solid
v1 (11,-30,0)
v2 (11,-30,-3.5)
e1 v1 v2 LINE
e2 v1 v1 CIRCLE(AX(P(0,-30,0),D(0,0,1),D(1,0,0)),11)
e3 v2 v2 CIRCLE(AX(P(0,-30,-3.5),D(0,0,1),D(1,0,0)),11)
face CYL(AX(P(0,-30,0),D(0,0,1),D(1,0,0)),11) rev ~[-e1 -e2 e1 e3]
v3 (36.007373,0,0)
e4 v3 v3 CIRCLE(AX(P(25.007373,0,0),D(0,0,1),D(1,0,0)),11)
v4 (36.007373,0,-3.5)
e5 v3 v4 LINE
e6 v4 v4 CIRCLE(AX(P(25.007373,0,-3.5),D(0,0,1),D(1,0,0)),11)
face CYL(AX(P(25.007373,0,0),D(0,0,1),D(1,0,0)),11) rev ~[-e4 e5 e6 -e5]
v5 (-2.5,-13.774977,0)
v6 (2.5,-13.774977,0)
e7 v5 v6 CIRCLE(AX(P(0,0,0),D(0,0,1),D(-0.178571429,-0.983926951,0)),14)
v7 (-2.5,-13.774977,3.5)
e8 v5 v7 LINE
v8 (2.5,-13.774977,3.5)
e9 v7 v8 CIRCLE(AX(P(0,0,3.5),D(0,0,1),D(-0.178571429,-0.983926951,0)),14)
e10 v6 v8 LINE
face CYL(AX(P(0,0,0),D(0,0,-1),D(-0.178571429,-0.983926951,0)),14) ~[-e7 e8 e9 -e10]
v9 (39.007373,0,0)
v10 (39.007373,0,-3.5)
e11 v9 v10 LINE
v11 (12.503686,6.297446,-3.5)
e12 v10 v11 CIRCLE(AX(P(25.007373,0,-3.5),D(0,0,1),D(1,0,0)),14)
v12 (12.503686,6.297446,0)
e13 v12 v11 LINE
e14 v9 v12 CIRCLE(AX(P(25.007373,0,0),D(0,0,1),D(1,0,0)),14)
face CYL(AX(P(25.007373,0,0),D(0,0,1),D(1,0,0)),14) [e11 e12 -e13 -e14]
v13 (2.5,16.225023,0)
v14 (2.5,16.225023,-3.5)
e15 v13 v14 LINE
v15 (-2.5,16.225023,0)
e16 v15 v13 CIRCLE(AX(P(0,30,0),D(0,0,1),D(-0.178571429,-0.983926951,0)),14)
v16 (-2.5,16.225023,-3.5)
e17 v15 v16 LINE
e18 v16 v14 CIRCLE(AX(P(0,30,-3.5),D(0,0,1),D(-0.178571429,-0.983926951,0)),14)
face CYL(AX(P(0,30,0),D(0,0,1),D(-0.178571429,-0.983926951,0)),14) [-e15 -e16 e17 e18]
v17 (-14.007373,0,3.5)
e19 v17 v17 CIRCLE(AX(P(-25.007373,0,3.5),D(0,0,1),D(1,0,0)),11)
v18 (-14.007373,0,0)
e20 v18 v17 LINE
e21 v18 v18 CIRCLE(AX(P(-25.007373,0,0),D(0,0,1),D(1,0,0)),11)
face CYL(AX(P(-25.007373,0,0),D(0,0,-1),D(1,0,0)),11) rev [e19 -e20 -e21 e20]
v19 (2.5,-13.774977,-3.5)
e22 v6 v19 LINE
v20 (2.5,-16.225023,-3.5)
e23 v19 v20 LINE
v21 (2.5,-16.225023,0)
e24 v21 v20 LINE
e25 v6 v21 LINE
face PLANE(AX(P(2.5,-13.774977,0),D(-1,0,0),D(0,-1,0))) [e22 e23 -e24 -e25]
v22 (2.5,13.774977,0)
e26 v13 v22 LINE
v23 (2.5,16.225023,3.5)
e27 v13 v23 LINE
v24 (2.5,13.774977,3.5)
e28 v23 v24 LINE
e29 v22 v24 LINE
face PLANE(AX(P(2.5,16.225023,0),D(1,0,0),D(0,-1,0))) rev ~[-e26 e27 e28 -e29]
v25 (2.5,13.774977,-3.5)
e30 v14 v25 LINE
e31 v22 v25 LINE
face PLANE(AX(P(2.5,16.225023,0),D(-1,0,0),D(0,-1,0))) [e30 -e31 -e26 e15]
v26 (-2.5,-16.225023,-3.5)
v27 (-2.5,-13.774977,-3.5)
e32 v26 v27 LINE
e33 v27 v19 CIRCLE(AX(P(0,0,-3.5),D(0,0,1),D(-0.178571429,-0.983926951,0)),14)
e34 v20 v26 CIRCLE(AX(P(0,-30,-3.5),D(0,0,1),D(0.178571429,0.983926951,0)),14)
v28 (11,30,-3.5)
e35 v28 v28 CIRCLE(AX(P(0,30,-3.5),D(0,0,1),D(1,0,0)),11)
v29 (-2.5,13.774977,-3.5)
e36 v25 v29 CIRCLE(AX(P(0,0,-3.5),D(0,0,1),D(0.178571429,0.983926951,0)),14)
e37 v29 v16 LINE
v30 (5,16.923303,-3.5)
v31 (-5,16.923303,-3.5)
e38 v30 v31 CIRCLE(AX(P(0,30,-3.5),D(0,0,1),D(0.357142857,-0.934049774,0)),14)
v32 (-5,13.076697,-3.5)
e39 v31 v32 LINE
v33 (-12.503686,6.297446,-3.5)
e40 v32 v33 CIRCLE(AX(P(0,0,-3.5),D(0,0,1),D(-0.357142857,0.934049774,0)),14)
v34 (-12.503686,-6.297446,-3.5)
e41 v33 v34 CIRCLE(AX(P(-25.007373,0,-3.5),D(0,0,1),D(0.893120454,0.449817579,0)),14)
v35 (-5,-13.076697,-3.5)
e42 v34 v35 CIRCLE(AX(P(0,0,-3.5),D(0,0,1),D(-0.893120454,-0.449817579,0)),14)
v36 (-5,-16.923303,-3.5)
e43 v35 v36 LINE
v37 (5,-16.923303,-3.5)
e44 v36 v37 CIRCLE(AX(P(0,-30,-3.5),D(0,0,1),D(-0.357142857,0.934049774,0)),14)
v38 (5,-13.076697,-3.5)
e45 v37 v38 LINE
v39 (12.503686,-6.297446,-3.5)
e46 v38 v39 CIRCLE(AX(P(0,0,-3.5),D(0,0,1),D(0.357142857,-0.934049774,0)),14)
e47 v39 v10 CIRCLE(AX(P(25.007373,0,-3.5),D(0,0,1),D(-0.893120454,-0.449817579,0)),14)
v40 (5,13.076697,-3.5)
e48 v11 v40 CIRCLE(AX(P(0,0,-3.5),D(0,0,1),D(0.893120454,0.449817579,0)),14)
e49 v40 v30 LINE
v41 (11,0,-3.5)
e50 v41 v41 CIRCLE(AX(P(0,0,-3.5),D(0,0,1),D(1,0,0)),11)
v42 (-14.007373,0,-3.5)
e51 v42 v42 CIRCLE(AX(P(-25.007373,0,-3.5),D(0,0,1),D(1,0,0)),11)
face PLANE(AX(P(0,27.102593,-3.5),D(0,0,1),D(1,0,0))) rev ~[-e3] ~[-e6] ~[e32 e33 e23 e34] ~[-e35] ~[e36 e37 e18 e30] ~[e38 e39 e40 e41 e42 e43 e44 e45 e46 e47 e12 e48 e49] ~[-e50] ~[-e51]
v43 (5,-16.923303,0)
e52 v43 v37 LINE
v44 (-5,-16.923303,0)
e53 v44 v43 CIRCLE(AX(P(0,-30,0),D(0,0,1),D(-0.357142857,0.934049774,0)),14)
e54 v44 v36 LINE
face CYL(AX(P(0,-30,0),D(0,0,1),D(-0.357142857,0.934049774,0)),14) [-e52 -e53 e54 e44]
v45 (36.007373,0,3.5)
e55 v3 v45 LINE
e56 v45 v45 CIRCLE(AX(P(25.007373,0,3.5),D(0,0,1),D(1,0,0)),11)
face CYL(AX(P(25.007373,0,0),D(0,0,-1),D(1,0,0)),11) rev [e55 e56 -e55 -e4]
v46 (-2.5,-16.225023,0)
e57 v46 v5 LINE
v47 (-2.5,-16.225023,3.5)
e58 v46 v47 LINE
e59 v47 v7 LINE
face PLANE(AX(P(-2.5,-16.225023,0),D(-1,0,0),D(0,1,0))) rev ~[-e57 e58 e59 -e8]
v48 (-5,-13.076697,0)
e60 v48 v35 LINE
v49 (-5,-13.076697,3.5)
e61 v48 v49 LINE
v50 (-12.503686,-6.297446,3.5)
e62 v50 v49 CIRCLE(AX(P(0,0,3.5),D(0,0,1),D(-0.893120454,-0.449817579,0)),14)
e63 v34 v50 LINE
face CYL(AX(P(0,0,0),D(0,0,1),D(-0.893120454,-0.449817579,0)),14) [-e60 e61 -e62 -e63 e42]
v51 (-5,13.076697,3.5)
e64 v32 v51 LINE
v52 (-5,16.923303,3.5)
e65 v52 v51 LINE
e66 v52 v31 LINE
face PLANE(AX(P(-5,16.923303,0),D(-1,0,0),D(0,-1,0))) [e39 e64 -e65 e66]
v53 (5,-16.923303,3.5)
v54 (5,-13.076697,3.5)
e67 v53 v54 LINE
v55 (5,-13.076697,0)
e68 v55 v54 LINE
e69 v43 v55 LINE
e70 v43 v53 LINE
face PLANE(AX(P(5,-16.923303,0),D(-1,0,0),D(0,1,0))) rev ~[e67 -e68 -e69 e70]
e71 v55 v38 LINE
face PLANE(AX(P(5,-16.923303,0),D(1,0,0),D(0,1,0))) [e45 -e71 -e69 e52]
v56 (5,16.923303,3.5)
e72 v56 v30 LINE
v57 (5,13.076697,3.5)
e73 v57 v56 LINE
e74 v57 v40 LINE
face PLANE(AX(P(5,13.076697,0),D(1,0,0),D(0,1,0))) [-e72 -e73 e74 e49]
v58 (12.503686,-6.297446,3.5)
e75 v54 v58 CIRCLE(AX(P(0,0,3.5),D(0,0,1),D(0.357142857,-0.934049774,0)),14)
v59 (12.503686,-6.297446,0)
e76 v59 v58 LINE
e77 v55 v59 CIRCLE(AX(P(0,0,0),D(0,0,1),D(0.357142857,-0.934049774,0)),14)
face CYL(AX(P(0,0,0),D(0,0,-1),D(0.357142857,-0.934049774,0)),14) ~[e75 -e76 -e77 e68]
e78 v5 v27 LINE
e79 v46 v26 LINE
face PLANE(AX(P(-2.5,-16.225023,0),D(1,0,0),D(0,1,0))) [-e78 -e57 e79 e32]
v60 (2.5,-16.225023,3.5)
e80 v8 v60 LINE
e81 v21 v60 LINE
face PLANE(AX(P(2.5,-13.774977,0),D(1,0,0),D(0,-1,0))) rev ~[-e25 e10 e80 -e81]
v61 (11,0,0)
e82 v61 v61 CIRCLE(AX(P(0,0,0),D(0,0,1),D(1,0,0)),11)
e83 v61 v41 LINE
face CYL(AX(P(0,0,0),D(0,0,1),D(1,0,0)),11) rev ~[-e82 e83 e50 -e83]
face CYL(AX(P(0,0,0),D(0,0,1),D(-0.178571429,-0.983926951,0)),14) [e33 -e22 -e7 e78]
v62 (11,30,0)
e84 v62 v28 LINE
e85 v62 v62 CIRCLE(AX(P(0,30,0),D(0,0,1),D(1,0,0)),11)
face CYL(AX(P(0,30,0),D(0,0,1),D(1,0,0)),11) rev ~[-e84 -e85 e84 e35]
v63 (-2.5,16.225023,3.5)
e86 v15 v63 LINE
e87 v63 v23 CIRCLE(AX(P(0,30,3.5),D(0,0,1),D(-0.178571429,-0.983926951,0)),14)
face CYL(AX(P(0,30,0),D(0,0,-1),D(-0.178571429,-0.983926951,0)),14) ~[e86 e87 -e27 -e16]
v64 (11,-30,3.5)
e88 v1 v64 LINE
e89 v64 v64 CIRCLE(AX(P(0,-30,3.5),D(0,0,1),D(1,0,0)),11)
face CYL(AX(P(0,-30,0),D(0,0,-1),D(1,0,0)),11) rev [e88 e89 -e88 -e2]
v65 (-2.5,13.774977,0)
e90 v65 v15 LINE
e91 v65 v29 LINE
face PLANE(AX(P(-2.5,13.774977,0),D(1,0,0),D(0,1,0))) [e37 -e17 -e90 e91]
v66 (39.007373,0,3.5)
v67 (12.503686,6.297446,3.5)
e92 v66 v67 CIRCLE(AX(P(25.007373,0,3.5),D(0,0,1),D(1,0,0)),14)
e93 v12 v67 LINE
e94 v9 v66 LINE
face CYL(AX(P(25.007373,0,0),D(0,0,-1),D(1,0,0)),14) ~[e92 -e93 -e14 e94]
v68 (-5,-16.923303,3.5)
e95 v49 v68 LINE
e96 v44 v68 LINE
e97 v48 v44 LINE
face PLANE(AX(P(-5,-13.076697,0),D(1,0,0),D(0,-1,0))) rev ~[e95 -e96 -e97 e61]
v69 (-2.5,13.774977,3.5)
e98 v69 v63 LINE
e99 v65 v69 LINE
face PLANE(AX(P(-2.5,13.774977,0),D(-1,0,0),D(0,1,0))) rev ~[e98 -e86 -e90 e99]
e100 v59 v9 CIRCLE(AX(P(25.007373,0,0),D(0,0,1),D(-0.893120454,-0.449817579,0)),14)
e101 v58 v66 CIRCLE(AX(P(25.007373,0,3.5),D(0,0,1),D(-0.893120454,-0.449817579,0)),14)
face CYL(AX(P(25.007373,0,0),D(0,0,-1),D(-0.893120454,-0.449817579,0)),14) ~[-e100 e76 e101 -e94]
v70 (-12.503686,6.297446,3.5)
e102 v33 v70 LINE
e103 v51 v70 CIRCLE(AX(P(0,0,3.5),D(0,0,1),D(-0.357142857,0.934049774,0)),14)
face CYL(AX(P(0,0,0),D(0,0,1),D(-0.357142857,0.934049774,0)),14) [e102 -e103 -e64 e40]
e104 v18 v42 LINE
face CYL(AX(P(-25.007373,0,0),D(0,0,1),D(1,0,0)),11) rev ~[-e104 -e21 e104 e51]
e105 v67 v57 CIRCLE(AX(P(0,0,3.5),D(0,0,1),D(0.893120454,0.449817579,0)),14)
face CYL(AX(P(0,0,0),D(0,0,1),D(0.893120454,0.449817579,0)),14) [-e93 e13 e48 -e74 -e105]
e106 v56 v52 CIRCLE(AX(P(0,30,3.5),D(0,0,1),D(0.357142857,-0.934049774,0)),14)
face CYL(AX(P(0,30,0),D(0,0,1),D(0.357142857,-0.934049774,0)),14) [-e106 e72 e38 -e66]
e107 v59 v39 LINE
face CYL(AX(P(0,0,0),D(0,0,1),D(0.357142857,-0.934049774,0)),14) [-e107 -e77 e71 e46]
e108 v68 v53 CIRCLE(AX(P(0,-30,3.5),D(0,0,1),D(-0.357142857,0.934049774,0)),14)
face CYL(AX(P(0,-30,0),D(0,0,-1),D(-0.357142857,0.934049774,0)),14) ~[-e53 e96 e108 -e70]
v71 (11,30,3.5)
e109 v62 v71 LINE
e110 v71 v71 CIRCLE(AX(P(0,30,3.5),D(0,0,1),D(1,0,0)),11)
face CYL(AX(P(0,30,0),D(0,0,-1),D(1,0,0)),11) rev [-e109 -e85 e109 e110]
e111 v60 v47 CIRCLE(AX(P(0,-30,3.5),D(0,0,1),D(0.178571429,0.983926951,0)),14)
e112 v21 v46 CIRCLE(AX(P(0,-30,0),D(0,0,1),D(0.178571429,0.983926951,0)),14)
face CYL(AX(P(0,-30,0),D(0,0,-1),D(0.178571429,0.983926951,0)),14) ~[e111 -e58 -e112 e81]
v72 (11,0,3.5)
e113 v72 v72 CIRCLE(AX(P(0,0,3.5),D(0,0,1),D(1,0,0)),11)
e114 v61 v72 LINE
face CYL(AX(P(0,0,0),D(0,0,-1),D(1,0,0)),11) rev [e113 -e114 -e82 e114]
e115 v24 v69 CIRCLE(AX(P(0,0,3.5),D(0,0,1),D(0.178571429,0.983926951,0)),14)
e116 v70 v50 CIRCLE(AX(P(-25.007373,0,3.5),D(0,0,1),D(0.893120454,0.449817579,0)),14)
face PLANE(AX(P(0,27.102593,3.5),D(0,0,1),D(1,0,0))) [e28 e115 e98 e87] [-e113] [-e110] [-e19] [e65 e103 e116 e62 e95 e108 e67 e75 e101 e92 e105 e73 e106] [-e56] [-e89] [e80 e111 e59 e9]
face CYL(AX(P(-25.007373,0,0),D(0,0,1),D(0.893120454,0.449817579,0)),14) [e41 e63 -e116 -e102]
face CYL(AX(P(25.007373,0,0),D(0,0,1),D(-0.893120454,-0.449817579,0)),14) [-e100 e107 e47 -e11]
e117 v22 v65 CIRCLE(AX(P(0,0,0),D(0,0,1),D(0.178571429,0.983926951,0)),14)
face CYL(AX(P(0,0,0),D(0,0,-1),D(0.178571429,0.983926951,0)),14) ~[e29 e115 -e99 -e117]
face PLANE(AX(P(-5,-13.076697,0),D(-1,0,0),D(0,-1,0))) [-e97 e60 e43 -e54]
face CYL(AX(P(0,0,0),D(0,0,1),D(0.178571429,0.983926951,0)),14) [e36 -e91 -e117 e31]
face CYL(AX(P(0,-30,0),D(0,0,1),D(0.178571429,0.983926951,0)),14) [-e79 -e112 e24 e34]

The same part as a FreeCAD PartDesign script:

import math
import FreeCAD as App
import Part
import Sketcher

V = App.Vector
Q = App.Units.Quantity

doc = App.newDocument("Part")
body = doc.addObject("PartDesign::Body", "Body")

sketch1 = doc.addObject("Sketcher::SketchObject", "Sketch")
body.addObject(sketch1)
sketch1.AttachmentSupport = (doc.XY_Plane, [""])
sketch1.MapMode = "FlatFace"
sketch1.addGeometry([
    Part.LineSegment(V(-5, 16.923303, 0), V(-5, 13.076697, 0)),
    Part.ArcOfCircle(Part.Circle(V(0, 0, 0), V(0, 0, 1), 14), math.radians(110.924832), math.radians(153.268019)),
    Part.ArcOfCircle(Part.Circle(V(-25.007373, 0, 0), V(0, 0, 1), 14), math.radians(26.731981), math.radians(333.268019)),
    Part.ArcOfCircle(Part.Circle(V(0, 0, 0), V(0, 0, 1), 14), math.radians(-153.268019), math.radians(-110.924832)),
    Part.LineSegment(V(-5, -13.076697, 0), V(-5, -16.923303, 0)),
    Part.ArcOfCircle(Part.Circle(V(0, -30, 0), V(0, 0, 1), 14), math.radians(110.924832), math.radians(429.075168)),
    Part.LineSegment(V(5, -16.923303, 0), V(5, -13.076697, 0)),
    Part.ArcOfCircle(Part.Circle(V(0, 0, 0), V(0, 0, 1), 14), math.radians(-69.075168), math.radians(-26.731981)),
    Part.ArcOfCircle(Part.Circle(V(25.007373, 0, 0), V(0, 0, 1), 14), math.radians(-153.268019), math.radians(0)),
    Part.ArcOfCircle(Part.Circle(V(25.007373, 0, 0), V(0, 0, 1), 14), math.radians(0), math.radians(153.268019)),
    Part.ArcOfCircle(Part.Circle(V(0, 0, 0), V(0, 0, 1), 14), math.radians(26.731981), math.radians(69.075168)),
    Part.LineSegment(V(5, 13.076697, 0), V(5, 16.923303, 0)),
    Part.ArcOfCircle(Part.Circle(V(0, 30, 0), V(0, 0, 1), 14), math.radians(-69.075168), math.radians(249.075168)),
    Part.Circle(V(0, -30, 0), V(0, 0, 1), 11),
    Part.ArcOfCircle(Part.Circle(V(0, 0, 0), V(0, 0, 1), 14), math.radians(-100.286561), math.radians(-79.713439)),
    Part.LineSegment(V(2.5, -13.774977, 0), V(2.5, -16.225023, 0)),
    Part.ArcOfCircle(Part.Circle(V(0, -30, 0), V(0, 0, 1), 14), math.radians(79.713439), math.radians(100.286561)),
    Part.LineSegment(V(-2.5, -16.225023, 0), V(-2.5, -13.774977, 0)),
    Part.Circle(V(-25.007373, 0, 0), V(0, 0, 1), 11),
    Part.Circle(V(0, 0, 0), V(0, 0, 1), 11),
    Part.LineSegment(V(-2.5, 13.774977, 0), V(-2.5, 16.225023, 0)),
    Part.ArcOfCircle(Part.Circle(V(0, 30, 0), V(0, 0, 1), 14), math.radians(-100.286561), math.radians(-79.713439)),
    Part.LineSegment(V(2.5, 16.225023, 0), V(2.5, 13.774977, 0)),
    Part.ArcOfCircle(Part.Circle(V(0, 0, 0), V(0, 0, 1), 14), math.radians(79.713439), math.radians(100.286561)),
    Part.Circle(V(0, 30, 0), V(0, 0, 1), 11),
    Part.Circle(V(25.007373, 0, 0), V(0, 0, 1), 11),
], False)
sketch1.addConstraint([
    Sketcher.Constraint("Coincident", 0, 2, 1, 1),
    Sketcher.Constraint("Coincident", 1, 2, 2, 1),
    Sketcher.Constraint("Coincident", 2, 2, 3, 1),
    Sketcher.Constraint("Coincident", 3, 2, 4, 1),
    Sketcher.Constraint("Coincident", 4, 2, 5, 1),
    Sketcher.Constraint("Coincident", 5, 2, 6, 1),
    Sketcher.Constraint("Coincident", 6, 2, 7, 1),
    Sketcher.Constraint("Coincident", 7, 2, 8, 1),
    Sketcher.Constraint("Tangent", 8, 2, 9, 1),
    Sketcher.Constraint("Coincident", 9, 2, 10, 1),
    Sketcher.Constraint("Coincident", 10, 2, 11, 1),
    Sketcher.Constraint("Coincident", 11, 2, 12, 1),
    Sketcher.Constraint("Coincident", 12, 2, 0, 1),
    Sketcher.Constraint("Coincident", 14, 2, 15, 1),
    Sketcher.Constraint("Coincident", 15, 2, 16, 1),
    Sketcher.Constraint("Coincident", 16, 2, 17, 1),
    Sketcher.Constraint("Coincident", 17, 2, 14, 1),
    Sketcher.Constraint("Coincident", 20, 2, 21, 1),
    Sketcher.Constraint("Coincident", 21, 2, 22, 1),
    Sketcher.Constraint("Coincident", 22, 2, 23, 1),
    Sketcher.Constraint("Coincident", 23, 2, 20, 1),
    Sketcher.Constraint("Vertical", 0),
    Sketcher.Constraint("Vertical", 4),
    Sketcher.Constraint("Vertical", 6),
    Sketcher.Constraint("Vertical", 11),
    Sketcher.Constraint("Vertical", 15),
    Sketcher.Constraint("Vertical", 17),
    Sketcher.Constraint("Vertical", 20),
    Sketcher.Constraint("Vertical", 22),
    Sketcher.Constraint("Coincident", 1, 3, -1, 1),
    Sketcher.Constraint("Coincident", 3, 3, -1, 1),
    Sketcher.Constraint("Coincident", 7, 3, -1, 1),
    Sketcher.Constraint("Coincident", 10, 3, -1, 1),
    Sketcher.Constraint("Coincident", 14, 3, -1, 1),
    Sketcher.Constraint("Coincident", 19, 3, -1, 1),
    Sketcher.Constraint("Coincident", 23, 3, -1, 1),
    Sketcher.Constraint("Coincident", 13, 3, 5, 3),
    Sketcher.Constraint("Coincident", 16, 3, 5, 3),
    Sketcher.Constraint("Coincident", 18, 3, 2, 3),
    Sketcher.Constraint("Coincident", 21, 3, 12, 3),
    Sketcher.Constraint("Coincident", 24, 3, 12, 3),
    Sketcher.Constraint("Coincident", 25, 3, 8, 3),
    Sketcher.Constraint("Equal", 1, 2),
    Sketcher.Constraint("Equal", 2, 3),
    Sketcher.Constraint("Equal", 3, 5),
    Sketcher.Constraint("Equal", 5, 7),
    Sketcher.Constraint("Equal", 7, 8),
    Sketcher.Constraint("Equal", 8, 9),
    Sketcher.Constraint("Equal", 9, 10),
    Sketcher.Constraint("Equal", 10, 12),
    Sketcher.Constraint("Equal", 12, 14),
    Sketcher.Constraint("Equal", 14, 16),
    Sketcher.Constraint("Equal", 13, 18),
    Sketcher.Constraint("Equal", 18, 19),
    Sketcher.Constraint("Equal", 16, 21),
    Sketcher.Constraint("Equal", 21, 23),
    Sketcher.Constraint("Equal", 19, 24),
    Sketcher.Constraint("Equal", 24, 25),
    Sketcher.Constraint("Symmetric", 2, 3, 8, 3, -1, 1),
    Sketcher.Constraint("Symmetric", 5, 3, 12, 3, -1, 1),
    Sketcher.Constraint("Symmetric", 4, 2, 5, 2, -2),
    Sketcher.Constraint("PointOnObject", 2, 3, -1),
    Sketcher.Constraint("PointOnObject", 8, 2, -1),
    Sketcher.Constraint("Horizontal", 0, 2, 10, 2),
    Sketcher.Constraint("Horizontal", 15, 2, 16, 2),
    Sketcher.Constraint("Horizontal", 20, 2, 21, 2),
    Sketcher.Constraint("Vertical", 0, 2, 3, 2),
    Sketcher.Constraint("Vertical", 17, 2, 20, 2),
    Sketcher.Constraint("Diameter", 13, Q("22 mm")),
    Sketcher.Constraint("Radius", 1, Q("14 mm")),
    Sketcher.Constraint("DistanceY", 5, 3, -1, 1, Q("30 mm")),
    Sketcher.Constraint("DistanceX", 0, 2, -1, 1, Q("5 mm")),
    Sketcher.Constraint("DistanceX", 16, 2, 15, 2, Q("5 mm")),
    Sketcher.Constraint("DistanceY", 1, 2, 0, 2, Q("6.779251 mm")),
])
pad1 = doc.addObject("PartDesign::Pad", "Pad")
body.addObject(pad1)
pad1.Profile = sketch1
pad1.Length = 7
pad1.Midplane = True

doc.recompute()
